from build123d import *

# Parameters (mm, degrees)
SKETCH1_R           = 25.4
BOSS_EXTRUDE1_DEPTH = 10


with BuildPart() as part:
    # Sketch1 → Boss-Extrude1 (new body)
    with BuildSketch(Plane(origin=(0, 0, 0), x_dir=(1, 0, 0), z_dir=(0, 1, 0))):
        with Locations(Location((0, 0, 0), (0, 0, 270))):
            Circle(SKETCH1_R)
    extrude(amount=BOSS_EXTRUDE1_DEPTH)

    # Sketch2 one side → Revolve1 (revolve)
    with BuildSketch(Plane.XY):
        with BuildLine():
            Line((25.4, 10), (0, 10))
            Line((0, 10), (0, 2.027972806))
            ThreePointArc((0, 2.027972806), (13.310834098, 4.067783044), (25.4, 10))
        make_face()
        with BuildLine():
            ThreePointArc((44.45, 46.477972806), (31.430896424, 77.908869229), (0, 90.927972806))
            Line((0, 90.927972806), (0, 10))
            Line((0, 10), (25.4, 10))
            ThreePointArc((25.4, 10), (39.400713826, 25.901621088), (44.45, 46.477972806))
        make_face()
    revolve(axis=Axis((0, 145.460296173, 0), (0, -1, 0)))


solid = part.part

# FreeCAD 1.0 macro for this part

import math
import FreeCAD as App
import Part
import Sketcher
Q = App.Units.Quantity

doc = App.newDocument("Part")
params = doc.addObject("Spreadsheet::Sheet", "Params")
for row, (alias, value) in enumerate([
    ("sketch1_diameter", "2 in"),
    ("pad1_length", "10 mm"),
    ("sketch2_radius", "1.75 in"),
    ("revolution_angle", "360 deg"),
], start=1):
    params.set(f"A{row}", alias)
    params.set(f"B{row}", "=" + value)
    params.setAlias(f"B{row}", alias)

body = doc.addObject("PartDesign::Body", "Body")

# Sketch on XZ plane
sketch1 = body.newObject("Sketcher::SketchObject", "Sketch")
sketch1.AttachmentSupport = (doc.getObject("XZ_Plane"), [""])
sketch1.MapMode = "FlatFace"
sketch1.addGeometry(Part.Circle(App.Vector(0, 0, 0), App.Vector(0, 0, 1), 25.4), False)
sketch1.addConstraint([
    Sketcher.Constraint("Coincident", 0, 3, -1, 1),
    Sketcher.Constraint("Diameter", 0, Q("2 in")),
])
sketch1.setExpression("Constraints[1]", "Params.sketch1_diameter")
pad1 = body.newObject("PartDesign::Pad", "Pad")
pad1.Profile = sketch1
pad1.setExpression("Length", "Params.pad1_length")
pad1.Reversed = True

# Sketch on XY plane
sketch2 = body.newObject("Sketcher::SketchObject", "Sketch001")
sketch2.AttachmentSupport = (doc.getObject("XY_Plane"), [""])
sketch2.MapMode = "FlatFace"
sketch2.addGeometry([
    Part.ArcOfCircle(Part.Circle(App.Vector(0, 46.477973, 0), App.Vector(0, 0, 1), 44.45), math.radians(-90), math.radians(-55.150095)),
    Part.ArcOfCircle(Part.Circle(App.Vector(0, 46.477973, 0), App.Vector(0, 0, 1), 44.45), math.radians(-55.150095), math.radians(0)),
    Part.ArcOfCircle(Part.Circle(App.Vector(0, 46.477973, 0), App.Vector(0, 0, 1), 44.45), math.radians(0), math.radians(90)),
    Part.LineSegment(App.Vector(0, 90.927973, 0), App.Vector(0, 2.027973, 0)),
], False)
sketch2.addConstraint([
    Sketcher.Constraint("Tangent", 0, 2, 1, 1),
    Sketcher.Constraint("Tangent", 1, 2, 2, 1),
    Sketcher.Constraint("Coincident", 2, 2, 3, 1),
    Sketcher.Constraint("Coincident", 3, 2, 0, 1),
    Sketcher.Constraint("Vertical", 3),
    Sketcher.Constraint("Coincident", 2, 3, 0, 3),
    Sketcher.Constraint("PointOnObject", 0, 3, -2),
    Sketcher.Constraint("PointOnObject", 2, 2, -2),
    Sketcher.Constraint("Horizontal", 2, 3, 1, 2),
    Sketcher.Constraint("Radius", 0, Q("1.75 in")),
    Sketcher.Constraint("DistanceX", -1, 1, 0, 2, Q("1 in")),
    Sketcher.Constraint("DistanceY", -1, 1, 0, 2, 10.0),
])
sketch2.setExpression("Constraints[9]", "Params.sketch2_radius")
revolution = body.newObject("PartDesign::Revolution", "Revolution")
revolution.Profile = sketch2
revolution.ReferenceAxis = (sketch2, ["V_Axis"])
revolution.setExpression("Angle", "Params.revolution_angle")

doc.recompute()
